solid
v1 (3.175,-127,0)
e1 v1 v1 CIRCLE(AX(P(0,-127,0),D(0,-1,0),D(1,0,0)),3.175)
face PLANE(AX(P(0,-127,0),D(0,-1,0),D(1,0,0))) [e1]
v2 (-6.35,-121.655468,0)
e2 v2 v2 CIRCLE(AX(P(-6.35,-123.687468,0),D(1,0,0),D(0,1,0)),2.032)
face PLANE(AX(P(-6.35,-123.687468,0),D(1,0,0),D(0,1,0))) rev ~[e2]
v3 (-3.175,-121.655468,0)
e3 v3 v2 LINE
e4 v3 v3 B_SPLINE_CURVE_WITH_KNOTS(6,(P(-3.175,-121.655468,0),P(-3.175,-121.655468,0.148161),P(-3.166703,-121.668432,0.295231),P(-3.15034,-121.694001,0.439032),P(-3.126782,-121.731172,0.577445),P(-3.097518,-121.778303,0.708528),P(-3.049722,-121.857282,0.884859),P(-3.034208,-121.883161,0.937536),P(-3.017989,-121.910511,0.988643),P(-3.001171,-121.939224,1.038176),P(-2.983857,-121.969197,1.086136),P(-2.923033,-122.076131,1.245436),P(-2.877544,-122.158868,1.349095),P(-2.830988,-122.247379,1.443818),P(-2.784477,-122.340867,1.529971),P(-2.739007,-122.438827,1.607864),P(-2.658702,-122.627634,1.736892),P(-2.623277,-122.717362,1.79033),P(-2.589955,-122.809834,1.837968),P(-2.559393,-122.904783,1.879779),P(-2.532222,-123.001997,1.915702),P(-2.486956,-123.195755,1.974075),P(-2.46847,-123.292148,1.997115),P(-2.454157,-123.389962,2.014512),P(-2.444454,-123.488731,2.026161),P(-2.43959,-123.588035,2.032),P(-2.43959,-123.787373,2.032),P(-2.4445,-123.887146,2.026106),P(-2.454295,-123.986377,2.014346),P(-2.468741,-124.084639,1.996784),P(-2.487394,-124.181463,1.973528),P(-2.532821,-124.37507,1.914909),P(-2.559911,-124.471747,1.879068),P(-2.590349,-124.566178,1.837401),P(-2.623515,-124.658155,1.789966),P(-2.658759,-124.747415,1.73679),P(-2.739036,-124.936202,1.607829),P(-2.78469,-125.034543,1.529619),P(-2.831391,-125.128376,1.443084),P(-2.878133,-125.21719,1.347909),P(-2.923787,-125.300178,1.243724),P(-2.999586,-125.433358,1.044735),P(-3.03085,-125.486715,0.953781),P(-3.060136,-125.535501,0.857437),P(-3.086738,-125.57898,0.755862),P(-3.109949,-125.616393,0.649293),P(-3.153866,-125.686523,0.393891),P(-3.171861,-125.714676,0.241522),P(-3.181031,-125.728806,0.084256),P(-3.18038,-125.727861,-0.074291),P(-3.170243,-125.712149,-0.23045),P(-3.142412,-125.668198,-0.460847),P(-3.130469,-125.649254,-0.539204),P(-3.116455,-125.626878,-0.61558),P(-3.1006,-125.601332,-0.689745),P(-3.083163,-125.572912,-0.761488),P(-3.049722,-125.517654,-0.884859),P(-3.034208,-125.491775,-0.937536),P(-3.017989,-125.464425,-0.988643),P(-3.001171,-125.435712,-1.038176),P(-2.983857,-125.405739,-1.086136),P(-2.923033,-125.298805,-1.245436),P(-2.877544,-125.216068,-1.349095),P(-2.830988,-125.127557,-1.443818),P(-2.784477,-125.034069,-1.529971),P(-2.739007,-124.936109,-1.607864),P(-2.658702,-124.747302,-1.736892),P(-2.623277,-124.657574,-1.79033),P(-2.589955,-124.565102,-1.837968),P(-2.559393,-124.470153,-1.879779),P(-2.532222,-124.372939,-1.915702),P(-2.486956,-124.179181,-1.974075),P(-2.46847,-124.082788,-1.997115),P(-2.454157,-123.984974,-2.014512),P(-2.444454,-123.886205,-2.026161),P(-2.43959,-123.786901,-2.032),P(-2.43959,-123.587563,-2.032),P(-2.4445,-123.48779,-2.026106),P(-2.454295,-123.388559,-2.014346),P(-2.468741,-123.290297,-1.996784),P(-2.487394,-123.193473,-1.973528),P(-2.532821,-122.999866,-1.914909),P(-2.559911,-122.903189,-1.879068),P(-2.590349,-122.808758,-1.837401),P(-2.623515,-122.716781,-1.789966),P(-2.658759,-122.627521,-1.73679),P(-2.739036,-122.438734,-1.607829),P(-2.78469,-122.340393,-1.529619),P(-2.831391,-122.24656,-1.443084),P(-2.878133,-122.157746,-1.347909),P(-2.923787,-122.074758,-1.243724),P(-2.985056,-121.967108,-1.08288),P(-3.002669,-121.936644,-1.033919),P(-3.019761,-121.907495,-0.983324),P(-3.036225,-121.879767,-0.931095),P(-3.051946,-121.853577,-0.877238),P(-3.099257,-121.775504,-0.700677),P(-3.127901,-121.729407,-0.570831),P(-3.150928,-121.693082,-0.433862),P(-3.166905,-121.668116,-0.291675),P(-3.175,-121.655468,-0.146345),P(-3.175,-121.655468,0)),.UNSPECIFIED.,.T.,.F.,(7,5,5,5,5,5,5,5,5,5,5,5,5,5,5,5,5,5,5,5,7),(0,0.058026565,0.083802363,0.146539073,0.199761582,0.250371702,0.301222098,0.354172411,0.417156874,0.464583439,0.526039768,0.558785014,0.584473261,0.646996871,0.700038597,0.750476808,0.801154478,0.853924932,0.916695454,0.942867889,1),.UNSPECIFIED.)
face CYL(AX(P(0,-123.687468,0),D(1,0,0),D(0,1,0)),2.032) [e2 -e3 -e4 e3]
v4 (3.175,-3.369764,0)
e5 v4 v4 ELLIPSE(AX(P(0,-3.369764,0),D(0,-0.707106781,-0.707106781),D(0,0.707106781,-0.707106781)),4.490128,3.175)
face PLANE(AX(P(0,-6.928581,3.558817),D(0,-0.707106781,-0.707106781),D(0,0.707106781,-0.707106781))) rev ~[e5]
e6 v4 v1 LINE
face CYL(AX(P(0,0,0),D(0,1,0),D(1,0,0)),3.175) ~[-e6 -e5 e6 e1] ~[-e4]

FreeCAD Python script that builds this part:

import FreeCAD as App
import Part
import Sketcher

V = App.Vector
Q = App.Units.Quantity

doc = App.newDocument("Part")
body = doc.addObject("PartDesign::Body", "Body")

# Sketch on XZ plane
sketch1 = body.newObject("Sketcher::SketchObject", "Sketch")
sketch1.AttachmentSupport = (doc.getObject("XZ_Plane"), [""])
sketch1.MapMode = "FlatFace"
sketch1.addGeometry(Part.Circle(V(0, 0, 0), V(0, 0, 1), 3.2), False)
sketch1.addConstraint([
    Sketcher.Constraint("Coincident", 0, 3, -1, 1),
    Sketcher.Constraint("Diameter", 0, Q("0.25 in")),
])
pad1 = body.newObject("PartDesign::Pad", "Pad")
pad1.Profile = sketch1
pad1.Length = Q("5 in")

# Sketch on YZ plane
sketch2 = body.newObject("Sketcher::SketchObject", "Sketch001")
sketch2.AttachmentSupport = (doc.getObject("YZ_Plane"), [""])
sketch2.MapMode = "FlatFace"
sketch2.addGeometry(Part.Circle(V(-123.7, 0, 0), V(0, 0, 1), 2), False)
sketch2.addConstraint([
    Sketcher.Constraint("PointOnObject", 0, 3, -1),
    Sketcher.Constraint("Diameter", 0, Q("0.16 in")),
    Sketcher.Constraint("DistanceX", 0, 3, -1, 1, Q("123.687468 mm")),
])
pad2 = body.newObject("PartDesign::Pad", "Pad001")
pad2.Profile = sketch2
pad2.Length = Q("0.25 in")
pad2.Reversed = True

# Sketch on YZ plane
sketch3 = body.newObject("Sketcher::SketchObject", "Sketch002")
sketch3.AttachmentSupport = (doc.getObject("YZ_Plane"), [""])
sketch3.MapMode = "FlatFace"
sketch3.addGeometry([
    Part.LineSegment(V(0, -4, 0), V(0, 4, 0)),
    Part.LineSegment(V(0, 4, 0), V(-7, 4, 0)),
    Part.LineSegment(V(-7, 4, 0), V(0, -4, 0)),
], False)
sketch3.addConstraint([
    Sketcher.Constraint("Coincident", 0, 2, 1, 1),
    Sketcher.Constraint("Coincident", 1, 2, 2, 1),
    Sketcher.Constraint("Coincident", 2, 2, 0, 1),
    Sketcher.Constraint("Vertical", 0),
    Sketcher.Constraint("Horizontal", 1),
    Sketcher.Constraint("Equal", 1, 0),
    Sketcher.Constraint("DistanceX", -1, 1, 0, 2, Q("0.006 in")),
    Sketcher.Constraint("DistanceX", 1, 2, 1, 1, Q("7.080981 mm")),
    Sketcher.Constraint("DistanceY", -1, 1, 0, 2, Q("3.558817 mm")),
])
pocket1 = body.newObject("PartDesign::Pocket", "Pocket")
pocket1.Profile = sketch3
pocket1.Length = Q("1 in")
pocket1.Midplane = True

doc.recompute()
